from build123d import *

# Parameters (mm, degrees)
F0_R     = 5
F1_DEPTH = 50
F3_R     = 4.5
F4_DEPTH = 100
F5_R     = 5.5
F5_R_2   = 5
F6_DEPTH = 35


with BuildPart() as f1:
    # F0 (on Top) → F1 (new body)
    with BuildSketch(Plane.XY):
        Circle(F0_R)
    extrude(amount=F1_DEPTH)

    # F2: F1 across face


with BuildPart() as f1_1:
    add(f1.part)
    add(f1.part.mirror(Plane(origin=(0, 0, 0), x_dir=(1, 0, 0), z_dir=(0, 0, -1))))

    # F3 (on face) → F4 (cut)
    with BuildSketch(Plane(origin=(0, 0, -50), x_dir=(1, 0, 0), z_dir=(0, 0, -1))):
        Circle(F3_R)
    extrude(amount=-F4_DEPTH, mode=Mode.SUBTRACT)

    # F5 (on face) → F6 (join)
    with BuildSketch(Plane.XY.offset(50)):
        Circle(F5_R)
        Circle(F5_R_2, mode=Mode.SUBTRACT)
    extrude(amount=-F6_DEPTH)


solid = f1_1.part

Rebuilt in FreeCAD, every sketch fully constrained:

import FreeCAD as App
import Part
import Sketcher

V = App.Vector

doc = App.newDocument("Part")
body = doc.addObject("PartDesign::Body", "Body")

# Sketch on XY plane
sketch1 = body.newObject("Sketcher::SketchObject", "Sketch")
sketch1.AttachmentSupport = (doc.getObject("XY_Plane"), [""])
sketch1.MapMode = "FlatFace"
sketch1.addGeometry(Part.Circle(V(0, 0, 0), V(0, 0, 1), 5), False)
sketch1.addConstraint([
    Sketcher.Constraint("Coincident", 0, 3, -1, 1),
    Sketcher.Constraint("Diameter", 0, 10.0),
])
pad1 = body.newObject("PartDesign::Pad", "Pad")
pad1.Profile = sketch1
pad1.Length = 50
body2 = doc.addObject("PartDesign::Body", "Body001")
doc.recompute()

body2.BaseFeature = body
doc.recompute()

mirroring = doc.addObject("Part::Mirroring", "Mirroring")
mirroring.Source = body
mirroring.Base = V(0, 0, 0)
mirroring.Normal = V(0, 0, -1)
body3 = doc.addObject("PartDesign::Body", "Body002")
body3.BaseFeature = mirroring
boolean = body2.newObject("PartDesign::Boolean", "Boolean")
boolean.Type = "Fuse"
boolean.addObjects([body3])
doc.recompute()

# Sketch on XY plane
sketch2 = body2.newObject("Sketcher::SketchObject", "Sketch001")
sketch2.AttachmentSupport = (doc.getObject("XY_Plane001"), [""])
sketch2.MapMode = "FlatFace"
sketch2.AttachmentOffset = App.Placement(V(0, 0, -50), App.Rotation())
sketch2.addGeometry(Part.Circle(V(0, 0, 0), V(0, 0, 1), 4.5), False)
sketch2.addConstraint([
    Sketcher.Constraint("Coincident", 0, 3, -1, 1),
    Sketcher.Constraint("Diameter", 0, 9.0),
])
pocket1 = body2.newObject("PartDesign::Pocket", "Pocket")
pocket1.Profile = sketch2
pocket1.Length = 100
pocket1.Reversed = True

# Sketch on XY plane
sketch3 = body2.newObject("Sketcher::SketchObject", "Sketch002")
sketch3.AttachmentSupport = (doc.getObject("XY_Plane001"), [""])
sketch3.MapMode = "FlatFace"
sketch3.AttachmentOffset = App.Placement(V(0, 0, 50), App.Rotation())
sketch3.addGeometry([
    Part.Circle(V(0, 0, 0), V(0, 0, 1), 6),
    Part.Circle(V(0, 0, 0), V(0, 0, 1), 5),
], False)
sketch3.addConstraint([
    Sketcher.Constraint("Coincident", 0, 3, -1, 1),
    Sketcher.Constraint("Coincident", 1, 3, -1, 1),
    Sketcher.Constraint("Diameter", 0, 11.0),
    Sketcher.Constraint("Diameter", 1, 10.0),
])
pad2 = body2.newObject("PartDesign::Pad", "Pad001")
pad2.Profile = sketch3
pad2.Length = 35
pad2.Reversed = True
mirroring.Visibility = False

doc.recompute()
